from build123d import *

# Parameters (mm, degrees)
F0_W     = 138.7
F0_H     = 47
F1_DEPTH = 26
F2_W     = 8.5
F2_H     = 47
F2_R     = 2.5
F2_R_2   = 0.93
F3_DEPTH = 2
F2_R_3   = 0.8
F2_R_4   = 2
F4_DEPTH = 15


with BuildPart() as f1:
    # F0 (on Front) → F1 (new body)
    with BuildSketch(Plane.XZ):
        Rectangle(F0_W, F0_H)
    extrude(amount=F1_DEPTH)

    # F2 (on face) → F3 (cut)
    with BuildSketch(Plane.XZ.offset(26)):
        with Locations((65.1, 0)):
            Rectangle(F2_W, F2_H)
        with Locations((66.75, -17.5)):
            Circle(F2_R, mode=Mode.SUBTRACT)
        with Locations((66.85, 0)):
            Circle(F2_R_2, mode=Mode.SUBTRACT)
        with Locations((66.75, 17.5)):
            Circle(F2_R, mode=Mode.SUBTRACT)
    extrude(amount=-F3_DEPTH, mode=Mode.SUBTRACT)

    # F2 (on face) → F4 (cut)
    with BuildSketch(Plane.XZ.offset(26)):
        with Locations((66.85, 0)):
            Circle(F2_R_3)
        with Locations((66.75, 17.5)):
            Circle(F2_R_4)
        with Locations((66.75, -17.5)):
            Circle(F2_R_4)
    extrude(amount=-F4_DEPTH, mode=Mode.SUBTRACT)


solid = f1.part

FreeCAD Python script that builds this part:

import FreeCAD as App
import Part
import Sketcher


def add_polygon(sketch, points):
    """Adds a closed chain of lines whose ends are joined by coincident constraints."""
    first, n = sketch.GeometryCount, len(points)
    for a, b in zip(points, points[1:] + points[:1]):
        sketch.addGeometry(Part.LineSegment(App.Vector(*a, 0), App.Vector(*b, 0)), False)
    for i in range(n):
        sketch.addConstraint(Sketcher.Constraint("Coincident", first + i, 2, first + (i + 1) % n, 1))

doc = App.newDocument("Part")
body = doc.addObject("PartDesign::Body", "Body")

sketch1 = doc.addObject("Sketcher::SketchObject", "Sketch")
body.addObject(sketch1)
sketch1.AttachmentSupport = (doc.XZ_Plane, [""])
sketch1.MapMode = "FlatFace"
add_polygon(sketch1, [(-69, 24), (-69, -24), (69, -24), (69, 24)])
sketch1.addConstraint([
    Sketcher.Constraint("Vertical", 0),
    Sketcher.Constraint("Horizontal", 1),
    Sketcher.Constraint("Vertical", 2),
    Sketcher.Constraint("Horizontal", 3),
    Sketcher.Constraint("Symmetric", 0, 2, 2, 2, -1, 1),
    Sketcher.Constraint("DistanceY", 0, 2, 0, 1, 47.0),
    Sketcher.Constraint("DistanceX", 1, 1, 1, 2, 138.7),
])
pad1 = doc.addObject("PartDesign::Pad", "Pad")
body.addObject(pad1)
pad1.Profile = sketch1
pad1.Length = 26

sketch2 = doc.addObject("Sketcher::SketchObject", "Sketch001")
body.addObject(sketch2)
sketch2.AttachmentSupport = (doc.XZ_Plane, [""])
sketch2.MapMode = "FlatFace"
sketch2.AttachmentOffset = App.Placement(App.Vector(0, 0, 26), App.Rotation())
add_polygon(sketch2, [(60.9, 23.5), (60.9, -23.5), (69.3, -23.5), (69.3, 23.5)])
sketch2.addGeometry(Part.Circle(App.Vector(66.8, -17.5, 0), App.Vector(0, 0, 1), 2.5), False)
sketch2.addGeometry(Part.Circle(App.Vector(66.8, 0, 0), App.Vector(0, 0, 1), 0.9), False)
sketch2.addGeometry(Part.Circle(App.Vector(66.8, 17.5, 0), App.Vector(0, 0, 1), 2.5), False)
sketch2.addConstraint([
    Sketcher.Constraint("Vertical", 0),
    Sketcher.Constraint("Horizontal", 1),
    Sketcher.Constraint("Vertical", 2),
    Sketcher.Constraint("Horizontal", 3),
    Sketcher.Constraint("Equal", 4, 6),
    Sketcher.Constraint("Symmetric", 4, 3, 6, 3, -1),
    Sketcher.Constraint("PointOnObject", 5, 3, -1),
    Sketcher.Constraint("Diameter", 4, 5.0),
    Sketcher.Constraint("Diameter", 5, 1.86),
    Sketcher.Constraint("DistanceY", 0, 2, 0, 1, 47.0),
    Sketcher.Constraint("DistanceX", 1, 1, 1, 2, 8.5),
    Sketcher.Constraint("DistanceY", 4, 3, 6, 3, 35.0),
    Sketcher.Constraint("DistanceY", 0, 2, 4, 3, 6.0),
    Sketcher.Constraint("DistanceX", 0, 2, 5, 3, 6.0),
    Sketcher.Constraint("DistanceX", 4, 3, 5, 3, 0.1),
    Sketcher.Constraint("DistanceX", -1, 1, 4, 3, 66.75),
])
pocket1 = doc.addObject("PartDesign::Pocket", "Pocket")
body.addObject(pocket1)
pocket1.Profile = sketch2
pocket1.Length = 2

sketch3 = doc.addObject("Sketcher::SketchObject", "Sketch002")
body.addObject(sketch3)
sketch3.AttachmentSupport = (doc.XZ_Plane, [""])
sketch3.MapMode = "FlatFace"
sketch3.AttachmentOffset = App.Placement(App.Vector(0, 0, 26), App.Rotation())
sketch3.addGeometry([
    Part.Circle(App.Vector(66.8, 0, 0), App.Vector(0, 0, 1), 0.8),
    Part.Circle(App.Vector(66.8, 17.5, 0), App.Vector(0, 0, 1), 2),
    Part.Circle(App.Vector(66.8, -17.5, 0), App.Vector(0, 0, 1), 2),
], False)
sketch3.addConstraint([
    Sketcher.Constraint("Equal", 1, 2),
    Sketcher.Constraint("Symmetric", 1, 3, 2, 3, -1),
    Sketcher.Constraint("PointOnObject", 0, 3, -1),
    Sketcher.Constraint("Diameter", 1, 4.0),
    Sketcher.Constraint("Diameter", 0, 1.6),
    Sketcher.Constraint("DistanceY", 2, 3, 1, 3, 35.0),
    Sketcher.Constraint("DistanceX", 1, 3, 0, 3, 0.1),
    Sketcher.Constraint("DistanceX", -1, 1, 0, 3, 66.85),
])
pocket2 = doc.addObject("PartDesign::Pocket", "Pocket001")
body.addObject(pocket2)
pocket2.Profile = sketch3
pocket2.Length = 15

doc.recompute()
